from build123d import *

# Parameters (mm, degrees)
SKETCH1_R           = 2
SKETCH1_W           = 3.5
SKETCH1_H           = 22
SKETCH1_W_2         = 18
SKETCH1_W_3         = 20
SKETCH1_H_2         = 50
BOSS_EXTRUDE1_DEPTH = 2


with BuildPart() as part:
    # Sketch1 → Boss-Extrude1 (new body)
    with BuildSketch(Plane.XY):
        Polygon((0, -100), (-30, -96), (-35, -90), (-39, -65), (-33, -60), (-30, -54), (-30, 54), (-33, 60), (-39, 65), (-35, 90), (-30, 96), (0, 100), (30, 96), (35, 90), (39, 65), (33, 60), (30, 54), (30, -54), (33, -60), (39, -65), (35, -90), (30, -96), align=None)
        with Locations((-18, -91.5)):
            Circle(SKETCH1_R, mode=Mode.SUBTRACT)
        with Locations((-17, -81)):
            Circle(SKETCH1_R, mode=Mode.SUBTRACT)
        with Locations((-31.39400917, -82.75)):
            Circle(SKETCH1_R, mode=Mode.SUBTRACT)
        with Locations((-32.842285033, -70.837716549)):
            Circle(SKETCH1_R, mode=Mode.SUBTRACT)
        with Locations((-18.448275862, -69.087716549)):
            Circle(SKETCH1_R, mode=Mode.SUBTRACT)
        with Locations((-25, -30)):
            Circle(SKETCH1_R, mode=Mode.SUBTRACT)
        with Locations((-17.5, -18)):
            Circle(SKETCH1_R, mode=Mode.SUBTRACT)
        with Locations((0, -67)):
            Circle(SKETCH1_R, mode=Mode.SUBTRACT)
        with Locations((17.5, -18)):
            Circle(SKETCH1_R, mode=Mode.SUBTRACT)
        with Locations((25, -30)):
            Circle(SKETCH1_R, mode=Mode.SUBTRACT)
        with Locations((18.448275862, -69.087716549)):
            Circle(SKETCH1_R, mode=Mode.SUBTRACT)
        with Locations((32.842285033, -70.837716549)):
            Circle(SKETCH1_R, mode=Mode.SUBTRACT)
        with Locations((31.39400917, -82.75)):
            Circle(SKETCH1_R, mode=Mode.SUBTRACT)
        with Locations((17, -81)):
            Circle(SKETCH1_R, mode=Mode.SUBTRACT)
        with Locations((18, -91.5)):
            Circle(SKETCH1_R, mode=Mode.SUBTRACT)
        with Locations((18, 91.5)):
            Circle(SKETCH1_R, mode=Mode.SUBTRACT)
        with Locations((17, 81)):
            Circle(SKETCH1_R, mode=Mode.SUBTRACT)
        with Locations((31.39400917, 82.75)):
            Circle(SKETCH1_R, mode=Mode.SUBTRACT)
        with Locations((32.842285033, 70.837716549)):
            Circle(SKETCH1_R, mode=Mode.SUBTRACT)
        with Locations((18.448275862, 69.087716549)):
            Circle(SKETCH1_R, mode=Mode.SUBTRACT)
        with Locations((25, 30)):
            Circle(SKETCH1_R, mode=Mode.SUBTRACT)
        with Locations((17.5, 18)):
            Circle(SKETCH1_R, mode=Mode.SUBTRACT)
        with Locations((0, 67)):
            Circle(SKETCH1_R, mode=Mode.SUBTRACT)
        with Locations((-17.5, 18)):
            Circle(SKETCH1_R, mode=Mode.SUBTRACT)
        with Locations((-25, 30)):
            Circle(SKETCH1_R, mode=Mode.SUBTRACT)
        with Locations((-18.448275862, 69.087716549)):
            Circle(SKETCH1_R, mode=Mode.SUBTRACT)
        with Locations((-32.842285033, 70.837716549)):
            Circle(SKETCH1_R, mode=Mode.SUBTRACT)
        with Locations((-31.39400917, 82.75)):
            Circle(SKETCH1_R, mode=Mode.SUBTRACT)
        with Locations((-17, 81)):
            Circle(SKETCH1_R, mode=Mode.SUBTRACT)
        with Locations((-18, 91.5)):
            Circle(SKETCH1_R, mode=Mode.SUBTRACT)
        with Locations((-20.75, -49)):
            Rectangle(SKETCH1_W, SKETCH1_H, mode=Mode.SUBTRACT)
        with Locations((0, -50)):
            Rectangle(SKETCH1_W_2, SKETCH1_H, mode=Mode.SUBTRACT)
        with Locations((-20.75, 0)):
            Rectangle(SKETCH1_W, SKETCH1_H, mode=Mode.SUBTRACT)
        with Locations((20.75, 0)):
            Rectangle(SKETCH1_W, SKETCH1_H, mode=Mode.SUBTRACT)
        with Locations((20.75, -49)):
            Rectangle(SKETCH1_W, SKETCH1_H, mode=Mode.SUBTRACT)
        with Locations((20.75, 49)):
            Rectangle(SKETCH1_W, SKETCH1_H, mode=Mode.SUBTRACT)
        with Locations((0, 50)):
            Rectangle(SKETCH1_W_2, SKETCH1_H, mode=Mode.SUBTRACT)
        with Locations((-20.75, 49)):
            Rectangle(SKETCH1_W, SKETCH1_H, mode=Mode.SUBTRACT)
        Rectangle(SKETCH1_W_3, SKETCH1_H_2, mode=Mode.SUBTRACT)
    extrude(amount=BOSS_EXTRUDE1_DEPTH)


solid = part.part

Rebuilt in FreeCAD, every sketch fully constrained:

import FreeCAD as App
import Part
import Sketcher
Q = App.Units.Quantity

doc = App.newDocument("Part")
params = doc.addObject("Spreadsheet::Sheet", "Params")
for row, (alias, value) in enumerate([
    ("sketch1_diameter", "4 mm"),
    ("sketch1_width", "18 mm"),
    ("sketch1_width2", "20 mm"),
    ("sketch1_height", "108 mm"),
    ("sketch1_height2", "22 mm"),
    ("pad1_length", "2 mm"),
], start=1):
    params.set(f"A{row}", alias)
    params.set(f"B{row}", "=" + value)
    params.setAlias(f"B{row}", alias)

body = doc.addObject("PartDesign::Body", "Body")

sketch1 = doc.addObject("Sketcher::SketchObject", "Sketch")
body.addObject(sketch1)
sketch1.AttachmentSupport = (doc.XY_Plane, [""])
sketch1.MapMode = "FlatFace"
sketch1.addGeometry([
    Part.LineSegment(App.Vector(-30, -96, 0), App.Vector(0, -100, 0)),
    Part.LineSegment(App.Vector(0, -100, 0), App.Vector(30, -96, 0)),
    Part.LineSegment(App.Vector(30, -96, 0), App.Vector(35, -90, 0)),
    Part.LineSegment(App.Vector(35, -90, 0), App.Vector(39, -65, 0)),
    Part.LineSegment(App.Vector(39, -65, 0), App.Vector(33, -60, 0)),
    Part.LineSegment(App.Vector(33, -60, 0), App.Vector(30, -54, 0)),
    Part.LineSegment(App.Vector(30, -54, 0), App.Vector(30, 54, 0)),
    Part.LineSegment(App.Vector(30, 54, 0), App.Vector(33, 60, 0)),
    Part.LineSegment(App.Vector(33, 60, 0), App.Vector(39, 65, 0)),
    Part.LineSegment(App.Vector(39, 65, 0), App.Vector(35, 90, 0)),
    Part.LineSegment(App.Vector(35, 90, 0), App.Vector(30, 96, 0)),
    Part.LineSegment(App.Vector(30, 96, 0), App.Vector(0, 100, 0)),
    Part.LineSegment(App.Vector(0, 100, 0), App.Vector(-30, 96, 0)),
    Part.LineSegment(App.Vector(-30, 96, 0), App.Vector(-35, 90, 0)),
    Part.LineSegment(App.Vector(-35, 90, 0), App.Vector(-39, 65, 0)),
    Part.LineSegment(App.Vector(-39, 65, 0), App.Vector(-33, 60, 0)),
    Part.LineSegment(App.Vector(-33, 60, 0), App.Vector(-30, 54, 0)),
    Part.LineSegment(App.Vector(-30, 54, 0), App.Vector(-30, -54, 0)),
    Part.LineSegment(App.Vector(-30, -54, 0), App.Vector(-33, -60, 0)),
    Part.LineSegment(App.Vector(-33, -60, 0), App.Vector(-39, -65, 0)),
    Part.LineSegment(App.Vector(-39, -65, 0), App.Vector(-35, -90, 0)),
    Part.LineSegment(App.Vector(-35, -90, 0), App.Vector(-30, -96, 0)),
    Part.Circle(App.Vector(31.4, -82.8, 0), App.Vector(0, 0, 1), 2),
    Part.Circle(App.Vector(32.8, -70.8, 0), App.Vector(0, 0, 1), 2),
    Part.Circle(App.Vector(18, -91.5, 0), App.Vector(0, 0, 1), 2),
    Part.Circle(App.Vector(18.4, -69.1, 0), App.Vector(0, 0, 1), 2),
    Part.LineSegment(App.Vector(19, -60, 0), App.Vector(19, -38, 0)),
    Part.LineSegment(App.Vector(19, -38, 0), App.Vector(22.5, -38, 0)),
    Part.LineSegment(App.Vector(22.5, -38, 0), App.Vector(22.5, -60, 0)),
    Part.LineSegment(App.Vector(22.5, -60, 0), App.Vector(19, -60, 0)),
    Part.Circle(App.Vector(17, -81, 0), App.Vector(0, 0, 1), 2),
    Part.Circle(App.Vector(25, -30, 0), App.Vector(0, 0, 1), 2),
    Part.Circle(App.Vector(17.5, -18, 0), App.Vector(0, 0, 1), 2),
    Part.LineSegment(App.Vector(19, -11, 0), App.Vector(19, 11, 0)),
    Part.LineSegment(App.Vector(19, 11, 0), App.Vector(22.5, 11, 0)),
    Part.LineSegment(App.Vector(22.5, 11, 0), App.Vector(22.5, -11, 0)),
    Part.LineSegment(App.Vector(22.5, -11, 0), App.Vector(19, -11, 0)),
    Part.Circle(App.Vector(-17, -81, 0), App.Vector(0, 0, 1), 2),
    Part.Circle(App.Vector(0, -67, 0), App.Vector(0, 0, 1), 2),
    Part.LineSegment(App.Vector(-9, -61, 0), App.Vector(-9, -39, 0)),
    Part.LineSegment(App.Vector(-9, -39, 0), App.Vector(9, -39, 0)),
    Part.LineSegment(App.Vector(9, -39, 0), App.Vector(9, -61, 0)),
    Part.LineSegment(App.Vector(9, -61, 0), App.Vector(-9, -61, 0)),
    Part.Circle(App.Vector(-18, -91.5, 0), App.Vector(0, 0, 1), 2),
    Part.Circle(App.Vector(-31.4, -82.8, 0), App.Vector(0, 0, 1), 2),
    Part.Circle(App.Vector(-32.8, -70.8, 0), App.Vector(0, 0, 1), 2),
    Part.Circle(App.Vector(-18.4, -69.1, 0), App.Vector(0, 0, 1), 2),
    Part.LineSegment(App.Vector(-22.5, -60, 0), App.Vector(-22.5, -38, 0)),
    Part.LineSegment(App.Vector(-22.5, -38, 0), App.Vector(-19, -38, 0)),
    Part.LineSegment(App.Vector(-19, -38, 0), App.Vector(-19, -60, 0)),
    Part.LineSegment(App.Vector(-19, -60, 0), App.Vector(-22.5, -60, 0)),
    Part.LineSegment(App.Vector(-10, -25, 0), App.Vector(-10, 25, 0)),
    Part.LineSegment(App.Vector(-10, 25, 0), App.Vector(10, 25, 0)),
    Part.LineSegment(App.Vector(10, 25, 0), App.Vector(10, -25, 0)),
    Part.LineSegment(App.Vector(10, -25, 0), App.Vector(-10, -25, 0)),
    Part.Circle(App.Vector(-25, -30, 0), App.Vector(0, 0, 1), 2),
    Part.Circle(App.Vector(-17.5, -18, 0), App.Vector(0, 0, 1), 2),
    Part.LineSegment(App.Vector(-22.5, -11, 0), App.Vector(-22.5, 11, 0)),
    Part.LineSegment(App.Vector(-22.5, 11, 0), App.Vector(-19, 11, 0)),
    Part.LineSegment(App.Vector(-19, 11, 0), App.Vector(-19, -11, 0)),
    Part.LineSegment(App.Vector(-19, -11, 0), App.Vector(-22.5, -11, 0)),
    Part.Circle(App.Vector(17.5, 18, 0), App.Vector(0, 0, 1), 2),
    Part.Circle(App.Vector(25, 30, 0), App.Vector(0, 0, 1), 2),
    Part.LineSegment(App.Vector(19, 38, 0), App.Vector(19, 60, 0)),
    Part.LineSegment(App.Vector(19, 60, 0), App.Vector(22.5, 60, 0)),
    Part.LineSegment(App.Vector(22.5, 60, 0), App.Vector(22.5, 38, 0)),
    Part.LineSegment(App.Vector(22.5, 38, 0), App.Vector(19, 38, 0)),
    Part.Circle(App.Vector(18.4, 69.1, 0), App.Vector(0, 0, 1), 2),
    Part.Circle(App.Vector(32.8, 70.8, 0), App.Vector(0, 0, 1), 2),
    Part.Circle(App.Vector(31.4, 82.8, 0), App.Vector(0, 0, 1), 2),
    Part.Circle(App.Vector(18, 91.5, 0), App.Vector(0, 0, 1), 2),
    Part.Circle(App.Vector(17, 81, 0), App.Vector(0, 0, 1), 2),
    Part.Circle(App.Vector(-17.5, 18, 0), App.Vector(0, 0, 1), 2),
    Part.Circle(App.Vector(-25, 30, 0), App.Vector(0, 0, 1), 2),
    Part.LineSegment(App.Vector(-9, 39, 0), App.Vector(-9, 61, 0)),
    Part.LineSegment(App.Vector(-9, 61, 0), App.Vector(9, 61, 0)),
    Part.LineSegment(App.Vector(9, 61, 0), App.Vector(9, 39, 0)),
    Part.LineSegment(App.Vector(9, 39, 0), App.Vector(-9, 39, 0)),
    Part.Circle(App.Vector(0, 67, 0), App.Vector(0, 0, 1), 2),
    Part.Circle(App.Vector(-17, 81, 0), App.Vector(0, 0, 1), 2),
    Part.LineSegment(App.Vector(-22.5, 38, 0), App.Vector(-22.5, 60, 0)),
    Part.LineSegment(App.Vector(-22.5, 60, 0), App.Vector(-19, 60, 0)),
    Part.LineSegment(App.Vector(-19, 60, 0), App.Vector(-19, 38, 0)),
    Part.LineSegment(App.Vector(-19, 38, 0), App.Vector(-22.5, 38, 0)),
    Part.Circle(App.Vector(-18.4, 69.1, 0), App.Vector(0, 0, 1), 2),
    Part.Circle(App.Vector(-18, 91.5, 0), App.Vector(0, 0, 1), 2),
    Part.Circle(App.Vector(-32.8, 70.8, 0), App.Vector(0, 0, 1), 2),
    Part.Circle(App.Vector(-31.4, 82.8, 0), App.Vector(0, 0, 1), 2),
], False)
sketch1.addConstraint([
    Sketcher.Constraint("Coincident", 0, 2, 1, 1),
    Sketcher.Constraint("Coincident", 1, 2, 2, 1),
    Sketcher.Constraint("Coincident", 2, 2, 3, 1),
    Sketcher.Constraint("Coincident", 3, 2, 4, 1),
    Sketcher.Constraint("Coincident", 4, 2, 5, 1),
    Sketcher.Constraint("Coincident", 5, 2, 6, 1),
    Sketcher.Constraint("Coincident", 6, 2, 7, 1),
    Sketcher.Constraint("Coincident", 7, 2, 8, 1),
    Sketcher.Constraint("Coincident", 8, 2, 9, 1),
    Sketcher.Constraint("Coincident", 9, 2, 10, 1),
    Sketcher.Constraint("Coincident", 10, 2, 11, 1),
    Sketcher.Constraint("Coincident", 11, 2, 12, 1),
    Sketcher.Constraint("Coincident", 12, 2, 13, 1),
    Sketcher.Constraint("Coincident", 13, 2, 14, 1),
    Sketcher.Constraint("Coincident", 14, 2, 15, 1),
    Sketcher.Constraint("Coincident", 15, 2, 16, 1),
    Sketcher.Constraint("Coincident", 16, 2, 17, 1),
    Sketcher.Constraint("Coincident", 17, 2, 18, 1),
    Sketcher.Constraint("Coincident", 18, 2, 19, 1),
    Sketcher.Constraint("Coincident", 19, 2, 20, 1),
    Sketcher.Constraint("Coincident", 20, 2, 21, 1),
    Sketcher.Constraint("Coincident", 21, 2, 0, 1),
    Sketcher.Constraint("Coincident", 26, 2, 27, 1),
    Sketcher.Constraint("Coincident", 27, 2, 28, 1),
    Sketcher.Constraint("Coincident", 28, 2, 29, 1),
    Sketcher.Constraint("Coincident", 29, 2, 26, 1),
    Sketcher.Constraint("Coincident", 33, 2, 34, 1),
    Sketcher.Constraint("Coincident", 34, 2, 35, 1),
    Sketcher.Constraint("Coincident", 35, 2, 36, 1),
    Sketcher.Constraint("Coincident", 36, 2, 33, 1),
    Sketcher.Constraint("Coincident", 39, 2, 40, 1),
    Sketcher.Constraint("Coincident", 40, 2, 41, 1),
    Sketcher.Constraint("Coincident", 41, 2, 42, 1),
    Sketcher.Constraint("Coincident", 42, 2, 39, 1),
    Sketcher.Constraint("Coincident", 47, 2, 48, 1),
    Sketcher.Constraint("Coincident", 48, 2, 49, 1),
    Sketcher.Constraint("Coincident", 49, 2, 50, 1),
    Sketcher.Constraint("Coincident", 50, 2, 47, 1),
    Sketcher.Constraint("Coincident", 51, 2, 52, 1),
    Sketcher.Constraint("Coincident", 52, 2, 53, 1),
    Sketcher.Constraint("Coincident", 53, 2, 54, 1),
    Sketcher.Constraint("Coincident", 54, 2, 51, 1),
    Sketcher.Constraint("Coincident", 57, 2, 58, 1),
    Sketcher.Constraint("Coincident", 58, 2, 59, 1),
    Sketcher.Constraint("Coincident", 59, 2, 60, 1),
    Sketcher.Constraint("Coincident", 60, 2, 57, 1),
    Sketcher.Constraint("Coincident", 63, 2, 64, 1),
    Sketcher.Constraint("Coincident", 64, 2, 65, 1),
    Sketcher.Constraint("Coincident", 65, 2, 66, 1),
    Sketcher.Constraint("Coincident", 66, 2, 63, 1),
    Sketcher.Constraint("Coincident", 74, 2, 75, 1),
    Sketcher.Constraint("Coincident", 75, 2, 76, 1),
    Sketcher.Constraint("Coincident", 76, 2, 77, 1),
    Sketcher.Constraint("Coincident", 77, 2, 74, 1),
    Sketcher.Constraint("Coincident", 80, 2, 81, 1),
    Sketcher.Constraint("Coincident", 81, 2, 82, 1),
    Sketcher.Constraint("Coincident", 82, 2, 83, 1),
    Sketcher.Constraint("Coincident", 83, 2, 80, 1),
    Sketcher.Constraint("Vertical", 6),
    Sketcher.Constraint("Vertical", 17),
    Sketcher.Constraint("Vertical", 26),
    Sketcher.Constraint("Horizontal", 27),
    Sketcher.Constraint("Vertical", 28),
    Sketcher.Constraint("Horizontal", 29),
    Sketcher.Constraint("Vertical", 33),
    Sketcher.Constraint("Horizontal", 34),
    Sketcher.Constraint("Vertical", 35),
    Sketcher.Constraint("Horizontal", 36),
    Sketcher.Constraint("Vertical", 39),
    Sketcher.Constraint("Horizontal", 40),
    Sketcher.Constraint("Vertical", 41),
    Sketcher.Constraint("Horizontal", 42),
    Sketcher.Constraint("Vertical", 47),
    Sketcher.Constraint("Horizontal", 48),
    Sketcher.Constraint("Vertical", 49),
    Sketcher.Constraint("Horizontal", 50),
    Sketcher.Constraint("Vertical", 51),
    Sketcher.Constraint("Horizontal", 52),
    Sketcher.Constraint("Vertical", 53),
    Sketcher.Constraint("Horizontal", 54),
    Sketcher.Constraint("Vertical", 57),
    Sketcher.Constraint("Horizontal", 58),
    Sketcher.Constraint("Vertical", 59),
    Sketcher.Constraint("Horizontal", 60),
    Sketcher.Constraint("Vertical", 63),
    Sketcher.Constraint("Horizontal", 64),
    Sketcher.Constraint("Vertical", 65),
    Sketcher.Constraint("Horizontal", 66),
    Sketcher.Constraint("Vertical", 74),
    Sketcher.Constraint("Horizontal", 75),
    Sketcher.Constraint("Vertical", 76),
    Sketcher.Constraint("Horizontal", 77),
    Sketcher.Constraint("Vertical", 80),
    Sketcher.Constraint("Horizontal", 81),
    Sketcher.Constraint("Vertical", 82),
    Sketcher.Constraint("Horizontal", 83),
    Sketcher.Constraint("Equal", 22, 23),
    Sketcher.Constraint("Equal", 23, 24),
    Sketcher.Constraint("Equal", 24, 25),
    Sketcher.Constraint("Equal", 25, 30),
    Sketcher.Constraint("Equal", 30, 31),
    Sketcher.Constraint("Equal", 31, 32),
    Sketcher.Constraint("Equal", 32, 37),
    Sketcher.Constraint("Equal", 37, 38),
    Sketcher.Constraint("Equal", 38, 43),
    Sketcher.Constraint("Equal", 43, 44),
    Sketcher.Constraint("Equal", 44, 45),
    Sketcher.Constraint("Equal", 45, 46),
    Sketcher.Constraint("Equal", 46, 55),
    Sketcher.Constraint("Equal", 55, 56),
    Sketcher.Constraint("Equal", 56, 61),
    Sketcher.Constraint("Equal", 61, 62),
    Sketcher.Constraint("Equal", 62, 67),
    Sketcher.Constraint("Equal", 67, 68),
    Sketcher.Constraint("Equal", 68, 69),
    Sketcher.Constraint("Equal", 69, 70),
    Sketcher.Constraint("Equal", 70, 71),
    Sketcher.Constraint("Equal", 71, 72),
    Sketcher.Constraint("Equal", 72, 73),
    Sketcher.Constraint("Equal", 73, 78),
    Sketcher.Constraint("Equal", 78, 79),
    Sketcher.Constraint("Equal", 79, 84),
    Sketcher.Constraint("Equal", 84, 85),
    Sketcher.Constraint("Equal", 85, 86),
    Sketcher.Constraint("Equal", 86, 87),
    Sketcher.Constraint("Symmetric", 56, 3, 61, 3, -1, 1),
    Sketcher.Constraint("Symmetric", 55, 3, 62, 3, -1, 1),
    Sketcher.Constraint("Symmetric", 46, 3, 67, 3, -1, 1),
    Sketcher.Constraint("Symmetric", 45, 3, 68, 3, -1, 1),
    Sketcher.Constraint("Symmetric", 44, 3, 69, 3, -1, 1),
    Sketcher.Constraint("Symmetric", 43, 3, 70, 3, -1, 1),
    Sketcher.Constraint("Symmetric", 37, 3, 71, 3, -1, 1),
    Sketcher.Constraint("Symmetric", 32, 3, 72, 3, -1, 1),
    Sketcher.Constraint("Symmetric", 31, 3, 73, 3, -1, 1),
    Sketcher.Constraint("Symmetric", 38, 3, 78, 3, -1, 1),
    Sketcher.Constraint("Symmetric", 30, 3, 79, 3, -1, 1),
    Sketcher.Constraint("Symmetric", 25, 3, 84, 3, -1, 1),
    Sketcher.Constraint("Symmetric", 24, 3, 85, 3, -1, 1),
    Sketcher.Constraint("Symmetric", 23, 3, 86, 3, -1, 1),
    Sketcher.Constraint("Symmetric", 22, 3, 87, 3, -1, 1),
    Sketcher.Constraint("Symmetric", 0, 2, 11, 2, -1, 1),
    Sketcher.Constraint("Symmetric", 1, 2, 12, 2, -1, 1),
    Sketcher.Constraint("Symmetric", 2, 2, 13, 2, -1, 1),
    Sketcher.Constraint("Symmetric", 3, 2, 14, 2, -1, 1),
    Sketcher.Constraint("Symmetric", 4, 2, 15, 2, -1, 1),
    Sketcher.Constraint("Symmetric", 5, 2, 16, 2, -1, 1),
    Sketcher.Constraint("Symmetric", 7, 2, 18, 2, -1, 1),
    Sketcher.Constraint("Symmetric", 8, 2, 19, 2, -1, 1),
    Sketcher.Constraint("Symmetric", 9, 2, 20, 2, -1, 1),
    Sketcher.Constraint("Symmetric", 10, 2, 21, 2, -1, 1),
    Sketcher.Constraint("Symmetric", 51, 2, 53, 2, -1, 1),
    Sketcher.Constraint("Symmetric", 35, 2, 57, 2, -1, 1),
    Sketcher.Constraint("Symmetric", 33, 2, 59, 2, -1, 1),
    Sketcher.Constraint("Symmetric", 49, 2, 63, 2, -1, 1),
    Sketcher.Constraint("Symmetric", 47, 2, 65, 2, -1, 1),
    Sketcher.Constraint("Symmetric", 41, 2, 74, 2, -1, 1),
    Sketcher.Constraint("Symmetric", 39, 2, 76, 2, -1, 1),
    Sketcher.Constraint("Symmetric", 28, 2, 80, 2, -1, 1),
    Sketcher.Constraint("Symmetric", 26, 2, 82, 2, -1, 1),
    Sketcher.Constraint("Symmetric", 30, 3, 37, 3, -2),
    Sketcher.Constraint("Symmetric", 24, 3, 43, 3, -2),
    Sketcher.Constraint("Symmetric", 22, 3, 44, 3, -2),
    Sketcher.Constraint("Symmetric", 23, 3, 45, 3, -2),
    Sketcher.Constraint("Symmetric", 25, 3, 46, 3, -2),
    Sketcher.Constraint("Symmetric", 31, 3, 55, 3, -2),
    Sketcher.Constraint("Symmetric", 32, 3, 56, 3, -2),
    Sketcher.Constraint("Symmetric", 10, 2, 12, 2, -2),
    Sketcher.Constraint("Symmetric", 9, 2, 13, 2, -2),
    Sketcher.Constraint("Symmetric", 8, 2, 14, 2, -2),
    Sketcher.Constraint("Symmetric", 7, 2, 15, 2, -2),
    Sketcher.Constraint("Symmetric", 27, 2, 47, 2, -2),
    Sketcher.Constraint("Symmetric", 29, 2, 49, 2, -2),
    Sketcher.Constraint("PointOnObject", 38, 3, -2),
    Sketcher.Constraint("PointOnObject", 0, 2, -2),
    Sketcher.Constraint("Perpendicular", 2, 4),
    Sketcher.Constraint("Parallel", 7, 18),
    Sketcher.Constraint("Horizontal", 6, 2, 16, 2),
    Sketcher.Constraint("Horizontal", 18, 2, 28, 2),
    Sketcher.Constraint("Horizontal", 34, 2, 57, 2),
    Sketcher.Constraint("Vertical", 1, 2, 5, 2),
    Sketcher.Constraint("Vertical", 29, 2, 33, 2),
    Sketcher.Constraint("Vertical", 28, 2, 34, 2),
    Sketcher.Constraint("Vertical", 42, 2, 74, 2),
    Sketcher.Constraint("Equal", 28, 33),
    Sketcher.Constraint("Equal", 35, 39),
    Sketcher.Constraint("Equal", 2, 4),
    Sketcher.Constraint("Diameter", 22, Q("4 mm")),
    Sketcher.Constraint("DistanceX", 40, 1, 40, 2, Q("18 mm")),
    Sketcher.Constraint("DistanceX", 52, 1, 52, 2, Q("20 mm")),
    Sketcher.Constraint("DistanceY", 6, 1, 6, 2, Q("108 mm")),
    Sketcher.Constraint("DistanceY", 26, 1, 26, 2, Q("22 mm")),
    Sketcher.Constraint("DistanceY", 51, 1, 51, 2, Q("50 mm")),
    Sketcher.Constraint("DistanceX", 27, 1, 27, 2, Q("3.5 mm")),
    Sketcher.Constraint("DistanceX", -1, 1, 24, 3, Q("18 mm")),
    Sketcher.Constraint("DistanceX", -1, 1, 30, 3, Q("17 mm")),
    Sketcher.Constraint("DistanceY", 30, 3, -1, 1, Q("81 mm")),
    Sketcher.Constraint("DistanceX", -1, 1, 31, 3, Q("25 mm")),
    Sketcher.Constraint("DistanceY", 31, 3, -1, 1, Q("30 mm")),
    Sketcher.Constraint("DistanceY", 32, 3, -1, 1, Q("18 mm")),
    Sketcher.Constraint("DistanceY", 38, 3, -1, 1, Q("67 mm")),
    Sketcher.Constraint("DistanceY", 0, 2, -1, 1, Q("100 mm")),
    Sketcher.Constraint("DistanceX", -1, 1, 1, 2, Q("30 mm")),
    Sketcher.Constraint("DistanceY", 1, 2, -1, 1, Q("96 mm")),
    Sketcher.Constraint("DistanceX", -1, 1, 2, 2, Q("35 mm")),
    Sketcher.Constraint("DistanceY", 2, 2, -1, 1, Q("90 mm")),
    Sketcher.Constraint("DistanceX", -1, 1, 3, 2, Q("39 mm")),
    Sketcher.Constraint("DistanceY", 3, 2, -1, 1, Q("65 mm")),
    Sketcher.Constraint("DistanceX", -1, 1, 26, 2, Q("19 mm")),
    Sketcher.Constraint("DistanceY", 39, 2, -1, 1, Q("39 mm")),
    Sketcher.Constraint("DistanceY", 24, 3, -1, 1, Q("91.5 mm")),
    Sketcher.Constraint("DistanceX", -1, 1, 32, 3, Q("17.5 mm")),
    Sketcher.Constraint("DistanceY", 22, 3, -1, 1, Q("82.75 mm")),
    Sketcher.Constraint("DistanceX", -1, 1, 22, 3, Q("31.394009 mm")),
    Sketcher.Constraint("DistanceX", -1, 1, 23, 3, Q("32.842285 mm")),
    Sketcher.Constraint("DistanceY", 23, 3, -1, 1, Q("70.837717 mm")),
    Sketcher.Constraint("DistanceX", -1, 1, 25, 3, Q("18.448276 mm")),
    Sketcher.Constraint("DistanceY", 25, 3, -1, 1, Q("69.087717 mm")),
])
sketch1.setExpression("Constraints[186]", "Params.sketch1_diameter")
sketch1.setExpression("Constraints[187]", "Params.sketch1_width")
sketch1.setExpression("Constraints[188]", "Params.sketch1_width2")
sketch1.setExpression("Constraints[189]", "Params.sketch1_height")
sketch1.setExpression("Constraints[190]", "Params.sketch1_height2")
pad1 = doc.addObject("PartDesign::Pad", "Pad")
body.addObject(pad1)
pad1.Profile = sketch1
pad1.setExpression("Length", "Params.pad1_length")

doc.recompute()
